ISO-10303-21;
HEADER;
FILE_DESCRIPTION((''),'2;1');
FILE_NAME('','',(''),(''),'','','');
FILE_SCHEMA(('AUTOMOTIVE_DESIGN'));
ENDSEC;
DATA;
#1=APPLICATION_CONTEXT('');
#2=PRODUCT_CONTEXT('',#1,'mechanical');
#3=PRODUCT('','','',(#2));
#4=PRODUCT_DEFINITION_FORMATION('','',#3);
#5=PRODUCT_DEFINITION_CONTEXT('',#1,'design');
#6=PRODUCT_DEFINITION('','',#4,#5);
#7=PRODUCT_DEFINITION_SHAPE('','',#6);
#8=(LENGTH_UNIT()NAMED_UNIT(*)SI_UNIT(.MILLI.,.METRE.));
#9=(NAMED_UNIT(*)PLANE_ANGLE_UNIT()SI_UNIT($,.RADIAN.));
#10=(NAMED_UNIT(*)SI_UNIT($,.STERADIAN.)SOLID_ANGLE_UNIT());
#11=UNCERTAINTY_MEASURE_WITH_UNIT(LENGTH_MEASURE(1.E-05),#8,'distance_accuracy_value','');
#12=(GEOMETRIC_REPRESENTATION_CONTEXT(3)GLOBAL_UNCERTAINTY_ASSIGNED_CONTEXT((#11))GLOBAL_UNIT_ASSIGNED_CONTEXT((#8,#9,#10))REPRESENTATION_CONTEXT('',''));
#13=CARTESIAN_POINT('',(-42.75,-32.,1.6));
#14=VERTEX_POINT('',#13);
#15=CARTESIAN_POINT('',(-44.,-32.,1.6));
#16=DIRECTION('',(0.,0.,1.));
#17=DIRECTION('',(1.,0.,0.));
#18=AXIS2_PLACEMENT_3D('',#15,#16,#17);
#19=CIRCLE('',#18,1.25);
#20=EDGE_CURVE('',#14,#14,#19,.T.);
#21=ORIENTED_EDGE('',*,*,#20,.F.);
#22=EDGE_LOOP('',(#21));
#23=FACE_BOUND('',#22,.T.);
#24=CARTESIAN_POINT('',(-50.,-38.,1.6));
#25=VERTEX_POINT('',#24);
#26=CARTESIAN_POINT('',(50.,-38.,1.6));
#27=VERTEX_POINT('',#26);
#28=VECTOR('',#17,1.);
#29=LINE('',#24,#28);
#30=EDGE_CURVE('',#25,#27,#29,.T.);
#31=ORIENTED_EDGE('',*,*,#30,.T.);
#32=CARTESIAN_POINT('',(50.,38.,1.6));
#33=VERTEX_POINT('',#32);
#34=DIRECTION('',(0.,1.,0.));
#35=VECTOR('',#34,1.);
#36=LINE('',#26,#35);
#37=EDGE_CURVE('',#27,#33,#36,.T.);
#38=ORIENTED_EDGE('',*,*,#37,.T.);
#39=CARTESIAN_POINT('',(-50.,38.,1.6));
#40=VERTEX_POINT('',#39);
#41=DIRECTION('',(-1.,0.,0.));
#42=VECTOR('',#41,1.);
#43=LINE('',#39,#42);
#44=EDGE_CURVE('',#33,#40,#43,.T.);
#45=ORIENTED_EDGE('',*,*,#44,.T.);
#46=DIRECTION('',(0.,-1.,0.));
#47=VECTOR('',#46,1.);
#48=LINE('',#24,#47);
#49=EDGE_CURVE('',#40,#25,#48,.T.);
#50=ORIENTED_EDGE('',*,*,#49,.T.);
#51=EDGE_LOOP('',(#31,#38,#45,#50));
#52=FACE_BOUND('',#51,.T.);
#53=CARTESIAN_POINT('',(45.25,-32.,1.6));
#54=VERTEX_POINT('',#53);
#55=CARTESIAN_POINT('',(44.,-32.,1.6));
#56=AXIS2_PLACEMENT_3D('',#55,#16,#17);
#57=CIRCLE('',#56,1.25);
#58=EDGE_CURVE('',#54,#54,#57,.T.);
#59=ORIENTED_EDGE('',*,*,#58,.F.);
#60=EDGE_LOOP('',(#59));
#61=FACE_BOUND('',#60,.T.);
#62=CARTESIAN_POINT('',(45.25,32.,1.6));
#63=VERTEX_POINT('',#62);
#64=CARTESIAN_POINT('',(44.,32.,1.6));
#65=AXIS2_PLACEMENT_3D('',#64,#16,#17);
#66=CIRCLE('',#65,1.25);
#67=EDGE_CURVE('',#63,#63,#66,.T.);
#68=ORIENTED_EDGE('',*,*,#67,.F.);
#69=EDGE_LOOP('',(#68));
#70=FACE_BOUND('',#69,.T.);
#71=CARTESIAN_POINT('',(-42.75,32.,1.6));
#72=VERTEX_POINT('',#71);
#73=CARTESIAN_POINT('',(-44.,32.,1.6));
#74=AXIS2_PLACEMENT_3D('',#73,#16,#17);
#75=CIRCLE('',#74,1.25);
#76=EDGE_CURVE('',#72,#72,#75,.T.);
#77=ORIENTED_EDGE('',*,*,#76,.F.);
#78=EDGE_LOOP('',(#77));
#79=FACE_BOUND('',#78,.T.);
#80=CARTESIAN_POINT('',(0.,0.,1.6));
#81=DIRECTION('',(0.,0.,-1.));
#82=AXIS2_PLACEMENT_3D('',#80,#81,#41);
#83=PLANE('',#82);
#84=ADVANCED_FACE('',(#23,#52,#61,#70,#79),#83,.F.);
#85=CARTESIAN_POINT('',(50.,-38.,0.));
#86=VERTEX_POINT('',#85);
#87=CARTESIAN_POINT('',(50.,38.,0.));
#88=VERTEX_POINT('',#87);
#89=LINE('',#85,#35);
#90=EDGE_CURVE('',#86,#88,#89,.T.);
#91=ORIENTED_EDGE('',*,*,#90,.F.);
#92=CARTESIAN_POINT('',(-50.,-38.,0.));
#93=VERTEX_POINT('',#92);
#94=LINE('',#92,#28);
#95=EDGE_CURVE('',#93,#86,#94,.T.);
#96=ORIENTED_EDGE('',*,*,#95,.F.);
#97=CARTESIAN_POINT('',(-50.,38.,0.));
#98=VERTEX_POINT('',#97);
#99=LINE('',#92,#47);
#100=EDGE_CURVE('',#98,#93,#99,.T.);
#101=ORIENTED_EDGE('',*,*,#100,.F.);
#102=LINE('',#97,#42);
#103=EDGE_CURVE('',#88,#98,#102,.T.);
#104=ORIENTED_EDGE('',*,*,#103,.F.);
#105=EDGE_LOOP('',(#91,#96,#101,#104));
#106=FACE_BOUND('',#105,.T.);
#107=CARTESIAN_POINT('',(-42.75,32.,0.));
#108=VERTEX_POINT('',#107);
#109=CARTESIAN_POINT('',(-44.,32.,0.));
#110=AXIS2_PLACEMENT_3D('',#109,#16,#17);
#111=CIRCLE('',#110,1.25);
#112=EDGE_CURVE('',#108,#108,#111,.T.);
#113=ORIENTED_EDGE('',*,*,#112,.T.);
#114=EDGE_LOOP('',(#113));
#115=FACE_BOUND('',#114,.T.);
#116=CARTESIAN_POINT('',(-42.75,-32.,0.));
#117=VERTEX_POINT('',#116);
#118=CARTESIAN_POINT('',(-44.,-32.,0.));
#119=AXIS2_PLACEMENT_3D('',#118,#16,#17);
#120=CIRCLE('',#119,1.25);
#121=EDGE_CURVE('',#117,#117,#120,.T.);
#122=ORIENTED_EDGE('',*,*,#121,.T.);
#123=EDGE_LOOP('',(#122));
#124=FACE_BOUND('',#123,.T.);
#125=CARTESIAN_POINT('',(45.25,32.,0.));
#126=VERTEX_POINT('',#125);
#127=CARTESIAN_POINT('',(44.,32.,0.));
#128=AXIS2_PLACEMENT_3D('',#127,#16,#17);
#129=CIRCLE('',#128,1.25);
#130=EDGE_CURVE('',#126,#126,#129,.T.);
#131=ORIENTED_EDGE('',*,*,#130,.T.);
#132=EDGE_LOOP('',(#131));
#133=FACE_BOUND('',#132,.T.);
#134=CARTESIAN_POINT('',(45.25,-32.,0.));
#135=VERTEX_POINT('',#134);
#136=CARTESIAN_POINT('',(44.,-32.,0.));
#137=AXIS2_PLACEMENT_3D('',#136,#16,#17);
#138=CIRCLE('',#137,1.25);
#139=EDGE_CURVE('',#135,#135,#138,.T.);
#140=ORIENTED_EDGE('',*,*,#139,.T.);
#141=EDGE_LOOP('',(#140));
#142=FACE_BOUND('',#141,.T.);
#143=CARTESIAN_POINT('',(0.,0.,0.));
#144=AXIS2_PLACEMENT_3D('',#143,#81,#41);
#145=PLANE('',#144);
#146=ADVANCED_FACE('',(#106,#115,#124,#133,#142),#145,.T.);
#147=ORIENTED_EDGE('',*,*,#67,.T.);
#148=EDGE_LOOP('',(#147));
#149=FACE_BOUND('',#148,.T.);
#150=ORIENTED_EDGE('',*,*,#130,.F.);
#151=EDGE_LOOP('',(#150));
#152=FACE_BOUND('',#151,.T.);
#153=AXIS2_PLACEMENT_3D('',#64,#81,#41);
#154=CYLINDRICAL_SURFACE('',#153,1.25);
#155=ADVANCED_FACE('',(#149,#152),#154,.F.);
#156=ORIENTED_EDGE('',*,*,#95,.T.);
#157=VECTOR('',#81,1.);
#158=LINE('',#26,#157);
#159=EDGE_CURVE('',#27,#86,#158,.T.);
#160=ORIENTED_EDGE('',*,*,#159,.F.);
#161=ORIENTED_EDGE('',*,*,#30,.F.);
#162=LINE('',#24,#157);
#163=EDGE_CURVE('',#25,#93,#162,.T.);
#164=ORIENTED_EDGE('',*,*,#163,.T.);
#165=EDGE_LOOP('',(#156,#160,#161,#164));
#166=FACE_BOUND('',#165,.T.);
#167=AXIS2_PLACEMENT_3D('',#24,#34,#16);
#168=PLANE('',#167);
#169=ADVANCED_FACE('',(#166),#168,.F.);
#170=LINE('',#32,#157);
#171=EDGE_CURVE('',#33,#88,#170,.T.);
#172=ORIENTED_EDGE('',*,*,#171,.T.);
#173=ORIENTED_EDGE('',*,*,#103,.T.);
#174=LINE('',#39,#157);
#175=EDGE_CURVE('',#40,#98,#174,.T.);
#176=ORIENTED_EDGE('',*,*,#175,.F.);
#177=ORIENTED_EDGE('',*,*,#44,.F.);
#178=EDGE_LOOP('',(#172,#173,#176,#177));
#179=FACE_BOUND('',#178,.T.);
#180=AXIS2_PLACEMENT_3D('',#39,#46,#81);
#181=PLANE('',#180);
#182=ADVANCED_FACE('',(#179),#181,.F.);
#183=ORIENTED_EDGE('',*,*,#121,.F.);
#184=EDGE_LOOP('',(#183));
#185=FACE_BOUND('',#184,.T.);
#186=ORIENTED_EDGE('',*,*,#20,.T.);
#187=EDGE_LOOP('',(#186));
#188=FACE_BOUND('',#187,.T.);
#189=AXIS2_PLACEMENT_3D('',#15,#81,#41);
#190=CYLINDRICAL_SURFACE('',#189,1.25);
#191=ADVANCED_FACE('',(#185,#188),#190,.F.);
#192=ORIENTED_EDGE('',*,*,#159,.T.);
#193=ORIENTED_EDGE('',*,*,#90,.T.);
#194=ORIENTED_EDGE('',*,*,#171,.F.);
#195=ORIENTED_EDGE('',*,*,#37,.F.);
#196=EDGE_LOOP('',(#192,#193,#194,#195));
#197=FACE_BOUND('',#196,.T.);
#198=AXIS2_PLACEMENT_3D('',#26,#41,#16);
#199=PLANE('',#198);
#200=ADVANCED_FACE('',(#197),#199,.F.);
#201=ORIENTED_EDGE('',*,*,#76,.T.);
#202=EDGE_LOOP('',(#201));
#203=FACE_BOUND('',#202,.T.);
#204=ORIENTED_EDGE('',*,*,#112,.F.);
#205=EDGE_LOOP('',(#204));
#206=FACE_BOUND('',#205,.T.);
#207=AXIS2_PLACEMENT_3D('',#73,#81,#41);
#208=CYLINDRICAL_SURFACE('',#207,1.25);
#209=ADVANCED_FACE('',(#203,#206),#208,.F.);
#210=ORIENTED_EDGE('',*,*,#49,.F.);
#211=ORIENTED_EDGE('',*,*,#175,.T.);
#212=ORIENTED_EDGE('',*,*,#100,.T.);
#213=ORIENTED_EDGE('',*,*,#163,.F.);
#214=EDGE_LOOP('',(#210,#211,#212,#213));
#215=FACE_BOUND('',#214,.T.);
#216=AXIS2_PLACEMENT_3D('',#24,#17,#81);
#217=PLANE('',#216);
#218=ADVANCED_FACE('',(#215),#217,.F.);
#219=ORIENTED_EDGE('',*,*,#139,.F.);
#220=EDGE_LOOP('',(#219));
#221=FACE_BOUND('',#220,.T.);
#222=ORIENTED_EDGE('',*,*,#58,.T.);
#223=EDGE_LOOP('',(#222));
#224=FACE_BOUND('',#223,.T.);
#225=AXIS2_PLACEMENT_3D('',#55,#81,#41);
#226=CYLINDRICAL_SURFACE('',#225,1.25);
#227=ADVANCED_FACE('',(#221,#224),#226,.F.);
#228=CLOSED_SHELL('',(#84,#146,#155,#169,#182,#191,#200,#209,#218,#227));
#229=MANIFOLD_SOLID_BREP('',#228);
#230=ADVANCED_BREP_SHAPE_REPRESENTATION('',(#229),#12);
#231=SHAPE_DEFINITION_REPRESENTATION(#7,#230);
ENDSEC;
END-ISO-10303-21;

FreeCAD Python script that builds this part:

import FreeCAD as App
import Part
import Sketcher


def add_polygon(sketch, points):
    """Adds a closed chain of lines whose ends are joined by coincident constraints."""
    first, n = sketch.GeometryCount, len(points)
    for a, b in zip(points, points[1:] + points[:1]):
        sketch.addGeometry(Part.LineSegment(App.Vector(*a, 0), App.Vector(*b, 0)), False)
    for i in range(n):
        sketch.addConstraint(Sketcher.Constraint("Coincident", first + i, 2, first + (i + 1) % n, 1))

doc = App.newDocument("Part")
body = doc.addObject("PartDesign::Body", "Body")

sketch1 = body.newObject("Sketcher::SketchObject", "Sketch")
sketch1.AttachmentSupport = (doc.getObject("XY_Plane"), [""])
sketch1.MapMode = "FlatFace"
add_polygon(sketch1, [(-50, 38), (-50, -38), (50, -38), (50, 38)])
sketch1.addGeometry(Part.Circle(App.Vector(-44, -32, 0), App.Vector(0, 0, 1), 1.2), False)
sketch1.addGeometry(Part.Circle(App.Vector(44, -32, 0), App.Vector(0, 0, 1), 1.2), False)
sketch1.addGeometry(Part.Circle(App.Vector(-44, 32, 0), App.Vector(0, 0, 1), 1.2), False)
sketch1.addGeometry(Part.Circle(App.Vector(44, 32, 0), App.Vector(0, 0, 1), 1.2), False)
sketch1.addConstraint([
    Sketcher.Constraint("Vertical", 0),
    Sketcher.Constraint("Horizontal", 1),
    Sketcher.Constraint("Vertical", 2),
    Sketcher.Constraint("Horizontal", 3),
    Sketcher.Constraint("Equal", 4, 5),
    Sketcher.Constraint("Equal", 5, 6),
    Sketcher.Constraint("Equal", 6, 7),
    Sketcher.Constraint("Symmetric", 5, 3, 6, 3, -1, 1),
    Sketcher.Constraint("Symmetric", 4, 3, 7, 3, -1, 1),
    Sketcher.Constraint("Symmetric", 0, 2, 2, 2, -1, 1),
    Sketcher.Constraint("Symmetric", 4, 3, 5, 3, -2),
    Sketcher.Constraint("Diameter", 4, 2.5),
    Sketcher.Constraint("DistanceX", 1, 1, 1, 2, 100.0),
    Sketcher.Constraint("DistanceY", 0, 2, 0, 1, 76.0),
    Sketcher.Constraint("DistanceX", 4, 3, -1, 1, 44.0),
    Sketcher.Constraint("DistanceY", 4, 3, -1, 1, 32.0),
])
pad1 = body.newObject("PartDesign::Pad", "Pad")
pad1.Profile = sketch1
pad1.Length = 1.6

doc.recompute()
